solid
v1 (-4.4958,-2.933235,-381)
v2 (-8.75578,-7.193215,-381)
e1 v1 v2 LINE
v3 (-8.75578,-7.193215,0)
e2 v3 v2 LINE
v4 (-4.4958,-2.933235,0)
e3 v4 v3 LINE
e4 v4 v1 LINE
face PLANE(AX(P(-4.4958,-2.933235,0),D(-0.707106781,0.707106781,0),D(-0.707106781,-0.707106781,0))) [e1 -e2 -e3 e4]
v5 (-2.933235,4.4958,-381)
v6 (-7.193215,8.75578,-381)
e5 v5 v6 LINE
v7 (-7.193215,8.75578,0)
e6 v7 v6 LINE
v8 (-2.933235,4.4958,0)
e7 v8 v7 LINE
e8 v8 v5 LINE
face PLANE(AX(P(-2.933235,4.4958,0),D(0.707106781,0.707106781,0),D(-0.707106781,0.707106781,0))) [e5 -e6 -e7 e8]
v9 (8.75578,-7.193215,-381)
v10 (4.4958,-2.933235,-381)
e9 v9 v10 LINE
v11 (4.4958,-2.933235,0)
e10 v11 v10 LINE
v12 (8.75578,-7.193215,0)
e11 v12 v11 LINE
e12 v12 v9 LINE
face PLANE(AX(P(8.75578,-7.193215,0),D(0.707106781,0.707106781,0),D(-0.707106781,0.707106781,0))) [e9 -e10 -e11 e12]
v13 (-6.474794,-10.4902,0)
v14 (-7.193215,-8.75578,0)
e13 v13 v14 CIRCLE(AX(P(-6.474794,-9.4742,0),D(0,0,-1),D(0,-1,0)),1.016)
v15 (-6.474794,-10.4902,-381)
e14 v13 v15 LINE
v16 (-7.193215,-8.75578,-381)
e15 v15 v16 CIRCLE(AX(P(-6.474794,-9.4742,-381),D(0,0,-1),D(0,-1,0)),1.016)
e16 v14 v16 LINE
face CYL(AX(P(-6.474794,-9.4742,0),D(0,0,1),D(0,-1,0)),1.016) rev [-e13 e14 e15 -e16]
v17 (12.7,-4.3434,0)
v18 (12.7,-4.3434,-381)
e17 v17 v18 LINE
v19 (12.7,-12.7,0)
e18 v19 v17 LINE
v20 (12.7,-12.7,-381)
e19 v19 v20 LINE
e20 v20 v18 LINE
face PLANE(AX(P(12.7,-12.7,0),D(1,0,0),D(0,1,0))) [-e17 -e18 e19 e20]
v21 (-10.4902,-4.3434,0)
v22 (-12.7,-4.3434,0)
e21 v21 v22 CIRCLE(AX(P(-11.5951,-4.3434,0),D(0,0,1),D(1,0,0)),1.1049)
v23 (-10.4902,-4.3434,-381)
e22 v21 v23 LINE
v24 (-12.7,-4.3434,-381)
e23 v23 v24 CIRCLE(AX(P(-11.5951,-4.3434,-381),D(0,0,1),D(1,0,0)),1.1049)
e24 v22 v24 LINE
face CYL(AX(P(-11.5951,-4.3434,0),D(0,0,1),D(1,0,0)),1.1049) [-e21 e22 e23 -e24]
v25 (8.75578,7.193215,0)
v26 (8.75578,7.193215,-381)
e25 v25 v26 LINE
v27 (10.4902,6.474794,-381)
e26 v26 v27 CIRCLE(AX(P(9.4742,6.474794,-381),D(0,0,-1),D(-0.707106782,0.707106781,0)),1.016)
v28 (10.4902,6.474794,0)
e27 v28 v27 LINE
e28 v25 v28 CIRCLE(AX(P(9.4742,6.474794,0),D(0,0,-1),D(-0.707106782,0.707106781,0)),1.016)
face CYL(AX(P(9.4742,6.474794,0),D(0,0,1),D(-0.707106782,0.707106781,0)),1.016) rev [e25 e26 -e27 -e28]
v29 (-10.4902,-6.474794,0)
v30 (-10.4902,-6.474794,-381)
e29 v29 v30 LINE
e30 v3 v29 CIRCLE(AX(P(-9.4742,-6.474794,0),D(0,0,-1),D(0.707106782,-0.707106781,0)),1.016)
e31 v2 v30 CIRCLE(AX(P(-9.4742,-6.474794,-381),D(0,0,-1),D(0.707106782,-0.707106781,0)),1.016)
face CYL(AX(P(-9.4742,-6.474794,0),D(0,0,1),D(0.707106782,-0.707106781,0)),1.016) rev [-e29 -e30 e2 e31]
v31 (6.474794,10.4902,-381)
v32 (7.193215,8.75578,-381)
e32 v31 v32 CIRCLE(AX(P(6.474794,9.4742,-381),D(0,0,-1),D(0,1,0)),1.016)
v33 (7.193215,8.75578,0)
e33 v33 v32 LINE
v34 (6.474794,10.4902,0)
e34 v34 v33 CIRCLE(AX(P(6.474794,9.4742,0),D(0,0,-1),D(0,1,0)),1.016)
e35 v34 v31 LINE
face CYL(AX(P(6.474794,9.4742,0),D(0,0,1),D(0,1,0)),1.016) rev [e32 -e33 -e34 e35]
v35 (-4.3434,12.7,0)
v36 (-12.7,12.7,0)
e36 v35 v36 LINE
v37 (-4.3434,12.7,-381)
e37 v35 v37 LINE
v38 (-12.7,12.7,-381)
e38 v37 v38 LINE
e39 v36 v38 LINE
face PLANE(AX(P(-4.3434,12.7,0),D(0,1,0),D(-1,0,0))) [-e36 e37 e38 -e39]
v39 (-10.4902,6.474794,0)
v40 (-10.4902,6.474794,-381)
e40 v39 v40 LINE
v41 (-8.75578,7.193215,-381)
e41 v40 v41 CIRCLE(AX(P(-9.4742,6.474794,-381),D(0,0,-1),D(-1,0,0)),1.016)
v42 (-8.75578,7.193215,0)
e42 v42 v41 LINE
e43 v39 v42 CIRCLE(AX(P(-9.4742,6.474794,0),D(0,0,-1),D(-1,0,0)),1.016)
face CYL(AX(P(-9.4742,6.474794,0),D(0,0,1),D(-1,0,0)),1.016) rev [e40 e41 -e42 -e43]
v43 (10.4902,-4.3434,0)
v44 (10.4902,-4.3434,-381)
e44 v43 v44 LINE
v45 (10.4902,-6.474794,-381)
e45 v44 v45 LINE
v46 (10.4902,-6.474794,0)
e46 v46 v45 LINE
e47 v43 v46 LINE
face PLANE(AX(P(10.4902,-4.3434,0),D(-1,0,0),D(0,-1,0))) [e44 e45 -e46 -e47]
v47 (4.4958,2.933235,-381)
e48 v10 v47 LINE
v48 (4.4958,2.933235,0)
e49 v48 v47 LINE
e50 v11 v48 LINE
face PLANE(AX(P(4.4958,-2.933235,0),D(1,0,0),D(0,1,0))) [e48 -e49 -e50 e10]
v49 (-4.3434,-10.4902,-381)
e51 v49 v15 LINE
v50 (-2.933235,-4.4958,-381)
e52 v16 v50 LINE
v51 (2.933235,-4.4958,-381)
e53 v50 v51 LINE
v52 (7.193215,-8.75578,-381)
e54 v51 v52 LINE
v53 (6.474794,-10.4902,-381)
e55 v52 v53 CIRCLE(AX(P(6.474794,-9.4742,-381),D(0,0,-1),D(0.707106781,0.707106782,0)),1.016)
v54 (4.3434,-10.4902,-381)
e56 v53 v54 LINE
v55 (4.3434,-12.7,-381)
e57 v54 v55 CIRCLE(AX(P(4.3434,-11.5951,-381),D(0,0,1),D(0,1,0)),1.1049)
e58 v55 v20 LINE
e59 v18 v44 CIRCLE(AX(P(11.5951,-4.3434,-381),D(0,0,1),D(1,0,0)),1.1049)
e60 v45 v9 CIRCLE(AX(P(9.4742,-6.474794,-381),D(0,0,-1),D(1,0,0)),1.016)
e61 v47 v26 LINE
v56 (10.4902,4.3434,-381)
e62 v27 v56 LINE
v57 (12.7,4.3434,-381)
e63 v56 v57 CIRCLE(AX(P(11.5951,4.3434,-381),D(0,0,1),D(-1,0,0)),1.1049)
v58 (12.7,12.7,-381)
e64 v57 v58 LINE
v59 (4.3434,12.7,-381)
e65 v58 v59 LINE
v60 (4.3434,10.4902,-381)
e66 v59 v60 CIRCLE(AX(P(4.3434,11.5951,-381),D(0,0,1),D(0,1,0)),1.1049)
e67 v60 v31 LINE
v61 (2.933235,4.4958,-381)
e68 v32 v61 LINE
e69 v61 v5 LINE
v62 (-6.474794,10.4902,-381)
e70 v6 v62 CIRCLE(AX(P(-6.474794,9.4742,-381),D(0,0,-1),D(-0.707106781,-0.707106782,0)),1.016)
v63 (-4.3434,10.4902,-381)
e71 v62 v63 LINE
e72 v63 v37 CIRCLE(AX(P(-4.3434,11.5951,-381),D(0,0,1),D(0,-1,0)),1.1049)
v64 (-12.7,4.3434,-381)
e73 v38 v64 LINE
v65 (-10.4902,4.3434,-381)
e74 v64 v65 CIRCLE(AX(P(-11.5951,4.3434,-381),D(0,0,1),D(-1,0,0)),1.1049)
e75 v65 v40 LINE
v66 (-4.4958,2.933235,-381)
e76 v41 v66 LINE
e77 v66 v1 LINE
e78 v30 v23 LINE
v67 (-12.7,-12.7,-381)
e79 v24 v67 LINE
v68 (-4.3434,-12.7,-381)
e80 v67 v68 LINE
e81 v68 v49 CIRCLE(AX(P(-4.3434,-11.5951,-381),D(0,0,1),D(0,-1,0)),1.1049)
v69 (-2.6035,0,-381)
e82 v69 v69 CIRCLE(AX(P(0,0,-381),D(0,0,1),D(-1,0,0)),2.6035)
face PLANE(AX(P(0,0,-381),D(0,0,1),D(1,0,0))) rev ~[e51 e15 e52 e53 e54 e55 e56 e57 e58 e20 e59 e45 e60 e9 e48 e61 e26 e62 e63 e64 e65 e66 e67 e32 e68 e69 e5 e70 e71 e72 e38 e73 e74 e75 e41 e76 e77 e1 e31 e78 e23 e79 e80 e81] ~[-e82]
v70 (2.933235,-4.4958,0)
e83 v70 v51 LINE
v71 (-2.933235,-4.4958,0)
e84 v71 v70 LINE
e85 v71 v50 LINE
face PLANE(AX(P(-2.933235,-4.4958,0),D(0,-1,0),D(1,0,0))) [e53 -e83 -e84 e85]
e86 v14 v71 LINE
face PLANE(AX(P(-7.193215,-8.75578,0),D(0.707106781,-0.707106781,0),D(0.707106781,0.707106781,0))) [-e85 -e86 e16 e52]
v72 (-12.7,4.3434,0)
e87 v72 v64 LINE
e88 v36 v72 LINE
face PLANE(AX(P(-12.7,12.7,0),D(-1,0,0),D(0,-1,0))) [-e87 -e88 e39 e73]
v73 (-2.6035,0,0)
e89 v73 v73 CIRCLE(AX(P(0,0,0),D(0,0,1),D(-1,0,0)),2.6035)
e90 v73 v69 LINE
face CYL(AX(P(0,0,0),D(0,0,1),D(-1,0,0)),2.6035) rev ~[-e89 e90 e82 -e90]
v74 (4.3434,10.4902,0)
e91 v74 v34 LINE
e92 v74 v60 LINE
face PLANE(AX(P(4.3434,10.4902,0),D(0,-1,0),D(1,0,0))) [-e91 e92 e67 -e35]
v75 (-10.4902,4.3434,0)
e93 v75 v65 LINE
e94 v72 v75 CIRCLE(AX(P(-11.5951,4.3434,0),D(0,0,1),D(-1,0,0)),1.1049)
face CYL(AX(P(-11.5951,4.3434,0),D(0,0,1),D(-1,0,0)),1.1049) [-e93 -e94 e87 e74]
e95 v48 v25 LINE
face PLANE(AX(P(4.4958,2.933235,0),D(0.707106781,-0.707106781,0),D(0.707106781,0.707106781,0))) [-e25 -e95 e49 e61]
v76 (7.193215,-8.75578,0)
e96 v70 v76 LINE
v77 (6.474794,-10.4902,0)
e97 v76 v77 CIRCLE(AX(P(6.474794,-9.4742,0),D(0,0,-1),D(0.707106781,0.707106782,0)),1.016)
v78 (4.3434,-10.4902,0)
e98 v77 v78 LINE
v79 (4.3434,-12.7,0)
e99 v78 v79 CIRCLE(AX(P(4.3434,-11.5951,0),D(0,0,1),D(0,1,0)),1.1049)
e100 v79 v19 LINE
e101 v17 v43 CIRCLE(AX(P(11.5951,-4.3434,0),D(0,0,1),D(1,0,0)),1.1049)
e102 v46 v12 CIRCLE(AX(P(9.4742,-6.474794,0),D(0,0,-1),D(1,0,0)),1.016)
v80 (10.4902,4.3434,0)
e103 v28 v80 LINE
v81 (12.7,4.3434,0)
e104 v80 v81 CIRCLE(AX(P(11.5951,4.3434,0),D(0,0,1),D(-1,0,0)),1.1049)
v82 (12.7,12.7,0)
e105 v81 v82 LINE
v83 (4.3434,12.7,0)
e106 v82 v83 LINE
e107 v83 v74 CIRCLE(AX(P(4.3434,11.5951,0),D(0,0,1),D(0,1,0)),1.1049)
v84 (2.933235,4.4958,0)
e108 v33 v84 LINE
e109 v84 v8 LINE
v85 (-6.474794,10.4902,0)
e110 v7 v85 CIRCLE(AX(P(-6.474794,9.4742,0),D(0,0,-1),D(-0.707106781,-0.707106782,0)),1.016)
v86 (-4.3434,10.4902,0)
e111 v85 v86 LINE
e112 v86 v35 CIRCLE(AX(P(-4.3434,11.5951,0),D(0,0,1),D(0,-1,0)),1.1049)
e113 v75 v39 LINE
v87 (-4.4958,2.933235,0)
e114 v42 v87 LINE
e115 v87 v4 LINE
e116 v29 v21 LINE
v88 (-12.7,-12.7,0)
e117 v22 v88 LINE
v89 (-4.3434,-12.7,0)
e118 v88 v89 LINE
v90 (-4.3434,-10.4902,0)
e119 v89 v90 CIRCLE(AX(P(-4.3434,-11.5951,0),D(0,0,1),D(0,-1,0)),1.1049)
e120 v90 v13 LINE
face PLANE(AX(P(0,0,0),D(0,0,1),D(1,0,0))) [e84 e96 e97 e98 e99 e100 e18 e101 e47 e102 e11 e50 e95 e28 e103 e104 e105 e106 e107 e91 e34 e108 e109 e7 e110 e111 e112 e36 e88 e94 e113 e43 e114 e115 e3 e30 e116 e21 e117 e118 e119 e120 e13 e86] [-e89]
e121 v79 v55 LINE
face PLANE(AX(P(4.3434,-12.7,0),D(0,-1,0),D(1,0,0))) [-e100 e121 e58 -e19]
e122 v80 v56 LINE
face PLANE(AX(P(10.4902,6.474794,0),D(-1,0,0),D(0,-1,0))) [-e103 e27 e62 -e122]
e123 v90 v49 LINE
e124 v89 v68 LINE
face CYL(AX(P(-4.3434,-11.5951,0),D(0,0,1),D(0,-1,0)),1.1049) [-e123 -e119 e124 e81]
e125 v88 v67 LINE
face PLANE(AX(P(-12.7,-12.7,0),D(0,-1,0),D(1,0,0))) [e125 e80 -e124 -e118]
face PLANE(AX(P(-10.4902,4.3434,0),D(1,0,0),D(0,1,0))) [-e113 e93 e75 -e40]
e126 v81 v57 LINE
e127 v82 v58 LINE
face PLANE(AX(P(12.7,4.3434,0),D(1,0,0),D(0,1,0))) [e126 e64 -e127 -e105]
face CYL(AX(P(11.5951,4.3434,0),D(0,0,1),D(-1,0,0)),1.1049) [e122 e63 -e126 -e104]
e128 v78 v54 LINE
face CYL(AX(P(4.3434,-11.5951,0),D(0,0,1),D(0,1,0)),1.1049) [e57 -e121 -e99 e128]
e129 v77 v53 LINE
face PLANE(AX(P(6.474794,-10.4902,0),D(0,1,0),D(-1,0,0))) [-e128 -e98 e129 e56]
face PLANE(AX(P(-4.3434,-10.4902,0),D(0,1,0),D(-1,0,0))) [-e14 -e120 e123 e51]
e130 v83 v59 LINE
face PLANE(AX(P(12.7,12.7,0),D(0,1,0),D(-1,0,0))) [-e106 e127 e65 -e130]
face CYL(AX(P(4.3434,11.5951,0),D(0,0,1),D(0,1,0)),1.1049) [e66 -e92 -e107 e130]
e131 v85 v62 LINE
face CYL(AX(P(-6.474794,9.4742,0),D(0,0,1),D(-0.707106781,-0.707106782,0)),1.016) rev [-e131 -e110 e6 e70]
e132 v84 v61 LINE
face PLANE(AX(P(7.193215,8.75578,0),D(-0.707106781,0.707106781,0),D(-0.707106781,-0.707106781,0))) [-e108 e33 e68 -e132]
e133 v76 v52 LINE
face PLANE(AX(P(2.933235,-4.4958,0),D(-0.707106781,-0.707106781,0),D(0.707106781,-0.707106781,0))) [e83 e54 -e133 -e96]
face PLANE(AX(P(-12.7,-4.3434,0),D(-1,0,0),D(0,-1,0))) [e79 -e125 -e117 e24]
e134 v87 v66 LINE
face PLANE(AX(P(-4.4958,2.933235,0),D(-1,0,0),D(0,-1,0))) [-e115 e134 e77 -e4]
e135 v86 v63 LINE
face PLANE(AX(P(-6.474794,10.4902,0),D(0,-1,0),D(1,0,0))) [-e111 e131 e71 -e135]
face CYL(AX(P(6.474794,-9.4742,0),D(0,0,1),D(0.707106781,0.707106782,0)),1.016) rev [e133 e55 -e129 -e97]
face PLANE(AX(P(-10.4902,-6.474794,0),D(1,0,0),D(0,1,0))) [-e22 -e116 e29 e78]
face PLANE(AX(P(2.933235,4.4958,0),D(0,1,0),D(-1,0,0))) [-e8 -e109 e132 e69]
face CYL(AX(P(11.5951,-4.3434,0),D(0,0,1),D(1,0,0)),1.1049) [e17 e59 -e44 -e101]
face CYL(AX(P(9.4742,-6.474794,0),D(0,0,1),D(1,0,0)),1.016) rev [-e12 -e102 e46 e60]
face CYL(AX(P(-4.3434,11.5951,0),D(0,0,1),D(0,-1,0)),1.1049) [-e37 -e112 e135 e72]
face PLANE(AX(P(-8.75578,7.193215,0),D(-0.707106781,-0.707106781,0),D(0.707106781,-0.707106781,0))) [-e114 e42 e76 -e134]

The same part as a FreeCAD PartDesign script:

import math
import FreeCAD as App
import Part
import Sketcher

V = App.Vector
Q = App.Units.Quantity

doc = App.newDocument("Part")
body = doc.addObject("PartDesign::Body", "Body")

sketch1 = body.newObject("Sketcher::SketchObject", "Sketch")
sketch1.AttachmentSupport = (doc.getObject("XY_Plane"), [""])
sketch1.MapMode = "FlatFace"
sketch1.addGeometry([
    Part.LineSegment(V(-12.7, -12.7, 0), V(-4.3434, -12.7, 0)),
    Part.ArcOfCircle(Part.Circle(V(-4.3434, -11.5951, 0), V(0, 0, 1), 1.1049), math.radians(-90), math.radians(90)),
    Part.LineSegment(V(-4.3434, -10.4902, 0), V(-6.474794, -10.4902, 0)),
    Part.ArcOfCircle(Part.Circle(V(-6.474794, -9.4742, 0), V(0, 0, 1), 1.016), math.radians(135), math.radians(270)),
    Part.LineSegment(V(-7.193215, -8.75578, 0), V(-2.933235, -4.4958, 0)),
    Part.LineSegment(V(-2.933235, -4.4958, 0), V(2.933235, -4.4958, 0)),
    Part.LineSegment(V(2.933235, -4.4958, 0), V(7.193215, -8.75578, 0)),
    Part.ArcOfCircle(Part.Circle(V(6.474794, -9.4742, 0), V(0, 0, 1), 1.016), math.radians(-90), math.radians(45)),
    Part.LineSegment(V(6.474794, -10.4902, 0), V(4.3434, -10.4902, 0)),
    Part.ArcOfCircle(Part.Circle(V(4.3434, -11.5951, 0), V(0, 0, 1), 1.1049), math.radians(90), math.radians(270)),
    Part.LineSegment(V(4.3434, -12.7, 0), V(12.7, -12.7, 0)),
    Part.LineSegment(V(12.7, -12.7, 0), V(12.7, -4.3434, 0)),
    Part.ArcOfCircle(Part.Circle(V(11.5951, -4.3434, 0), V(0, 0, 1), 1.1049), math.radians(0), math.radians(180)),
    Part.LineSegment(V(10.4902, -4.3434, 0), V(10.4902, -6.474794, 0)),
    Part.ArcOfCircle(Part.Circle(V(9.4742, -6.474794, 0), V(0, 0, 1), 1.016), math.radians(-135), math.radians(0)),
    Part.LineSegment(V(8.75578, -7.193215, 0), V(4.4958, -2.933235, 0)),
    Part.LineSegment(V(4.4958, -2.933235, 0), V(4.4958, 2.933235, 0)),
    Part.LineSegment(V(4.4958, 2.933235, 0), V(8.75578, 7.193215, 0)),
    Part.ArcOfCircle(Part.Circle(V(9.4742, 6.474794, 0), V(0, 0, 1), 1.016), math.radians(0), math.radians(135)),
    Part.LineSegment(V(10.4902, 6.474794, 0), V(10.4902, 4.3434, 0)),
    Part.ArcOfCircle(Part.Circle(V(11.5951, 4.3434, 0), V(0, 0, 1), 1.1049), math.radians(180), math.radians(360)),
    Part.LineSegment(V(12.7, 4.3434, 0), V(12.7, 12.7, 0)),
    Part.LineSegment(V(12.7, 12.7, 0), V(4.3434, 12.7, 0)),
    Part.ArcOfCircle(Part.Circle(V(4.3434, 11.5951, 0), V(0, 0, 1), 1.1049), math.radians(90), math.radians(270)),
    Part.LineSegment(V(4.3434, 10.4902, 0), V(6.474794, 10.4902, 0)),
    Part.ArcOfCircle(Part.Circle(V(6.474794, 9.4742, 0), V(0, 0, 1), 1.016), math.radians(-45), math.radians(90)),
    Part.LineSegment(V(7.193215, 8.75578, 0), V(2.933235, 4.4958, 0)),
    Part.LineSegment(V(2.933235, 4.4958, 0), V(-2.933235, 4.4958, 0)),
    Part.LineSegment(V(-2.933235, 4.4958, 0), V(-7.193215, 8.75578, 0)),
    Part.ArcOfCircle(Part.Circle(V(-6.474794, 9.4742, 0), V(0, 0, 1), 1.016), math.radians(90), math.radians(225)),
    Part.LineSegment(V(-6.474794, 10.4902, 0), V(-4.3434, 10.4902, 0)),
    Part.ArcOfCircle(Part.Circle(V(-4.3434, 11.5951, 0), V(0, 0, 1), 1.1049), math.radians(-90), math.radians(90)),
    Part.LineSegment(V(-4.3434, 12.7, 0), V(-12.7, 12.7, 0)),
    Part.LineSegment(V(-12.7, 12.7, 0), V(-12.7, 4.3434, 0)),
    Part.ArcOfCircle(Part.Circle(V(-11.5951, 4.3434, 0), V(0, 0, 1), 1.1049), math.radians(180), math.radians(360)),
    Part.LineSegment(V(-10.4902, 4.3434, 0), V(-10.4902, 6.474794, 0)),
    Part.ArcOfCircle(Part.Circle(V(-9.4742, 6.474794, 0), V(0, 0, 1), 1.016), math.radians(45), math.radians(180)),
    Part.LineSegment(V(-8.75578, 7.193215, 0), V(-4.4958, 2.933235, 0)),
    Part.LineSegment(V(-4.4958, 2.933235, 0), V(-4.4958, -2.933235, 0)),
    Part.LineSegment(V(-4.4958, -2.933235, 0), V(-8.75578, -7.193215, 0)),
    Part.ArcOfCircle(Part.Circle(V(-9.4742, -6.474794, 0), V(0, 0, 1), 1.016), math.radians(180), math.radians(315)),
    Part.LineSegment(V(-10.4902, -6.474794, 0), V(-10.4902, -4.3434, 0)),
    Part.ArcOfCircle(Part.Circle(V(-11.5951, -4.3434, 0), V(0, 0, 1), 1.1049), math.radians(0), math.radians(180)),
    Part.LineSegment(V(-12.7, -4.3434, 0), V(-12.7, -12.7, 0)),
    Part.Circle(V(0, 0, 0), V(0, 0, 1), 2.6035),
], False)
sketch1.addConstraint([
    Sketcher.Constraint("Tangent", 0, 2, 1, 1),
    Sketcher.Constraint("Tangent", 1, 2, 2, 1),
    Sketcher.Constraint("Tangent", 2, 2, 3, 2),
    Sketcher.Constraint("Tangent", 3, 1, 4, 1),
    Sketcher.Constraint("Coincident", 4, 2, 5, 1),
    Sketcher.Constraint("Coincident", 5, 2, 6, 1),
    Sketcher.Constraint("Tangent", 6, 2, 7, 2),
    Sketcher.Constraint("Tangent", 7, 1, 8, 1),
    Sketcher.Constraint("Tangent", 8, 2, 9, 1),
    Sketcher.Constraint("Tangent", 9, 2, 10, 1),
    Sketcher.Constraint("Coincident", 10, 2, 11, 1),
    Sketcher.Constraint("Tangent", 11, 2, 12, 1),
    Sketcher.Constraint("Tangent", 12, 2, 13, 1),
    Sketcher.Constraint("Tangent", 13, 2, 14, 2),
    Sketcher.Constraint("Tangent", 14, 1, 15, 1),
    Sketcher.Constraint("Coincident", 15, 2, 16, 1),
    Sketcher.Constraint("Coincident", 16, 2, 17, 1),
    Sketcher.Constraint("Tangent", 17, 2, 18, 2),
    Sketcher.Constraint("Tangent", 18, 1, 19, 1),
    Sketcher.Constraint("Tangent", 19, 2, 20, 1),
    Sketcher.Constraint("Tangent", 20, 2, 21, 1),
    Sketcher.Constraint("Coincident", 21, 2, 22, 1),
    Sketcher.Constraint("Tangent", 22, 2, 23, 1),
    Sketcher.Constraint("Tangent", 23, 2, 24, 1),
    Sketcher.Constraint("Tangent", 24, 2, 25, 2),
    Sketcher.Constraint("Tangent", 25, 1, 26, 1),
    Sketcher.Constraint("Coincident", 26, 2, 27, 1),
    Sketcher.Constraint("Coincident", 27, 2, 28, 1),
    Sketcher.Constraint("Tangent", 28, 2, 29, 2),
    Sketcher.Constraint("Tangent", 29, 1, 30, 1),
    Sketcher.Constraint("Tangent", 30, 2, 31, 1),
    Sketcher.Constraint("Tangent", 31, 2, 32, 1),
    Sketcher.Constraint("Coincident", 32, 2, 33, 1),
    Sketcher.Constraint("Tangent", 33, 2, 34, 1),
    Sketcher.Constraint("Tangent", 34, 2, 35, 1),
    Sketcher.Constraint("Tangent", 35, 2, 36, 2),
    Sketcher.Constraint("Tangent", 36, 1, 37, 1),
    Sketcher.Constraint("Coincident", 37, 2, 38, 1),
    Sketcher.Constraint("Coincident", 38, 2, 39, 1),
    Sketcher.Constraint("Tangent", 39, 2, 40, 2),
    Sketcher.Constraint("Tangent", 40, 1, 41, 1),
    Sketcher.Constraint("Tangent", 41, 2, 42, 1),
    Sketcher.Constraint("Tangent", 42, 2, 43, 1),
    Sketcher.Constraint("Coincident", 43, 2, 0, 1),
    Sketcher.Constraint("Horizontal", 0),
    Sketcher.Constraint("Horizontal", 2),
    Sketcher.Constraint("Horizontal", 5),
    Sketcher.Constraint("Horizontal", 8),
    Sketcher.Constraint("Horizontal", 10),
    Sketcher.Constraint("Vertical", 11),
    Sketcher.Constraint("Vertical", 13),
    Sketcher.Constraint("Vertical", 16),
    Sketcher.Constraint("Vertical", 19),
    Sketcher.Constraint("Vertical", 21),
    Sketcher.Constraint("Horizontal", 22),
    Sketcher.Constraint("Horizontal", 24),
    Sketcher.Constraint("Horizontal", 27),
    Sketcher.Constraint("Horizontal", 30),
    Sketcher.Constraint("Horizontal", 32),
    Sketcher.Constraint("Vertical", 33),
    Sketcher.Constraint("Vertical", 35),
    Sketcher.Constraint("Vertical", 38),
    Sketcher.Constraint("Vertical", 41),
    Sketcher.Constraint("Vertical", 43),
    Sketcher.Constraint("Coincident", 44, 3, -1, 1),
    Sketcher.Constraint("Equal", 3, 7),
    Sketcher.Constraint("Equal", 1, 9),
    Sketcher.Constraint("Equal", 9, 12),
    Sketcher.Constraint("Equal", 7, 14),
    Sketcher.Constraint("Equal", 14, 18),
    Sketcher.Constraint("Equal", 12, 20),
    Sketcher.Constraint("Equal", 20, 23),
    Sketcher.Constraint("Equal", 18, 25),
    Sketcher.Constraint("Equal", 25, 29),
    Sketcher.Constraint("Equal", 23, 31),
    Sketcher.Constraint("Equal", 31, 34),
    Sketcher.Constraint("Equal", 29, 36),
    Sketcher.Constraint("Equal", 36, 40),
    Sketcher.Constraint("Equal", 34, 42),
    Sketcher.Constraint("Symmetric", 1, 3, 23, 3, -1, 1),
    Sketcher.Constraint("Symmetric", 7, 3, 29, 3, -1, 1),
    Sketcher.Constraint("Symmetric", 12, 3, 34, 3, -1, 1),
    Sketcher.Constraint("Symmetric", 18, 3, 40, 3, -1, 1),
    Sketcher.Constraint("Symmetric", 3, 1, 25, 1, -1, 1),
    Sketcher.Constraint("Symmetric", 5, 2, 27, 2, -1, 1),
    Sketcher.Constraint("Symmetric", 14, 1, 36, 1, -1, 1),
    Sketcher.Constraint("Symmetric", 16, 2, 38, 2, -1, 1),
    Sketcher.Constraint("Symmetric", 3, 3, 7, 3, -2),
    Sketcher.Constraint("Symmetric", 20, 3, 34, 3, -2),
    Sketcher.Constraint("Symmetric", 17, 2, 36, 1, -2),
    Sketcher.Constraint("Perpendicular", 4, 6),
    Sketcher.Constraint("Parallel", 6, 15),
    Sketcher.Constraint("Perpendicular", 15, 17),
    Sketcher.Constraint("Horizontal", 12, 3, 42, 3),
    Sketcher.Constraint("Vertical", 9, 3, 23, 3),
    Sketcher.Constraint("Vertical", 1, 3, 31, 3),
    Sketcher.Constraint("Equal", 32, 11),
    Sketcher.Constraint("Equal", 30, 13),
    Sketcher.Constraint("Equal", 27, 16),
    Sketcher.Constraint("Equal", 6, 15),
    Sketcher.Constraint("Radius", 3, Q("0.04 in")),
    Sketcher.Constraint("Diameter", 44, Q("0.205 in")),
    Sketcher.Constraint("DistanceY", 0, 2, -1, 1, Q("0.5 in")),
    Sketcher.Constraint("Radius", 1, Q("0.0435 in")),
    Sketcher.Constraint("DistanceX", 0, 1, 0, 2, Q("0.329 in")),
    Sketcher.Constraint("DistanceY", 4, 2, -1, 1, Q("0.177 in")),
    Sketcher.Constraint("DistanceX", 5, 1, 5, 2, Q("5.866471 mm")),
])
pad1 = body.newObject("PartDesign::Pad", "Pad")
pad1.Profile = sketch1
pad1.Length = Q("15 in")
pad1.Reversed = True

doc.recompute()
